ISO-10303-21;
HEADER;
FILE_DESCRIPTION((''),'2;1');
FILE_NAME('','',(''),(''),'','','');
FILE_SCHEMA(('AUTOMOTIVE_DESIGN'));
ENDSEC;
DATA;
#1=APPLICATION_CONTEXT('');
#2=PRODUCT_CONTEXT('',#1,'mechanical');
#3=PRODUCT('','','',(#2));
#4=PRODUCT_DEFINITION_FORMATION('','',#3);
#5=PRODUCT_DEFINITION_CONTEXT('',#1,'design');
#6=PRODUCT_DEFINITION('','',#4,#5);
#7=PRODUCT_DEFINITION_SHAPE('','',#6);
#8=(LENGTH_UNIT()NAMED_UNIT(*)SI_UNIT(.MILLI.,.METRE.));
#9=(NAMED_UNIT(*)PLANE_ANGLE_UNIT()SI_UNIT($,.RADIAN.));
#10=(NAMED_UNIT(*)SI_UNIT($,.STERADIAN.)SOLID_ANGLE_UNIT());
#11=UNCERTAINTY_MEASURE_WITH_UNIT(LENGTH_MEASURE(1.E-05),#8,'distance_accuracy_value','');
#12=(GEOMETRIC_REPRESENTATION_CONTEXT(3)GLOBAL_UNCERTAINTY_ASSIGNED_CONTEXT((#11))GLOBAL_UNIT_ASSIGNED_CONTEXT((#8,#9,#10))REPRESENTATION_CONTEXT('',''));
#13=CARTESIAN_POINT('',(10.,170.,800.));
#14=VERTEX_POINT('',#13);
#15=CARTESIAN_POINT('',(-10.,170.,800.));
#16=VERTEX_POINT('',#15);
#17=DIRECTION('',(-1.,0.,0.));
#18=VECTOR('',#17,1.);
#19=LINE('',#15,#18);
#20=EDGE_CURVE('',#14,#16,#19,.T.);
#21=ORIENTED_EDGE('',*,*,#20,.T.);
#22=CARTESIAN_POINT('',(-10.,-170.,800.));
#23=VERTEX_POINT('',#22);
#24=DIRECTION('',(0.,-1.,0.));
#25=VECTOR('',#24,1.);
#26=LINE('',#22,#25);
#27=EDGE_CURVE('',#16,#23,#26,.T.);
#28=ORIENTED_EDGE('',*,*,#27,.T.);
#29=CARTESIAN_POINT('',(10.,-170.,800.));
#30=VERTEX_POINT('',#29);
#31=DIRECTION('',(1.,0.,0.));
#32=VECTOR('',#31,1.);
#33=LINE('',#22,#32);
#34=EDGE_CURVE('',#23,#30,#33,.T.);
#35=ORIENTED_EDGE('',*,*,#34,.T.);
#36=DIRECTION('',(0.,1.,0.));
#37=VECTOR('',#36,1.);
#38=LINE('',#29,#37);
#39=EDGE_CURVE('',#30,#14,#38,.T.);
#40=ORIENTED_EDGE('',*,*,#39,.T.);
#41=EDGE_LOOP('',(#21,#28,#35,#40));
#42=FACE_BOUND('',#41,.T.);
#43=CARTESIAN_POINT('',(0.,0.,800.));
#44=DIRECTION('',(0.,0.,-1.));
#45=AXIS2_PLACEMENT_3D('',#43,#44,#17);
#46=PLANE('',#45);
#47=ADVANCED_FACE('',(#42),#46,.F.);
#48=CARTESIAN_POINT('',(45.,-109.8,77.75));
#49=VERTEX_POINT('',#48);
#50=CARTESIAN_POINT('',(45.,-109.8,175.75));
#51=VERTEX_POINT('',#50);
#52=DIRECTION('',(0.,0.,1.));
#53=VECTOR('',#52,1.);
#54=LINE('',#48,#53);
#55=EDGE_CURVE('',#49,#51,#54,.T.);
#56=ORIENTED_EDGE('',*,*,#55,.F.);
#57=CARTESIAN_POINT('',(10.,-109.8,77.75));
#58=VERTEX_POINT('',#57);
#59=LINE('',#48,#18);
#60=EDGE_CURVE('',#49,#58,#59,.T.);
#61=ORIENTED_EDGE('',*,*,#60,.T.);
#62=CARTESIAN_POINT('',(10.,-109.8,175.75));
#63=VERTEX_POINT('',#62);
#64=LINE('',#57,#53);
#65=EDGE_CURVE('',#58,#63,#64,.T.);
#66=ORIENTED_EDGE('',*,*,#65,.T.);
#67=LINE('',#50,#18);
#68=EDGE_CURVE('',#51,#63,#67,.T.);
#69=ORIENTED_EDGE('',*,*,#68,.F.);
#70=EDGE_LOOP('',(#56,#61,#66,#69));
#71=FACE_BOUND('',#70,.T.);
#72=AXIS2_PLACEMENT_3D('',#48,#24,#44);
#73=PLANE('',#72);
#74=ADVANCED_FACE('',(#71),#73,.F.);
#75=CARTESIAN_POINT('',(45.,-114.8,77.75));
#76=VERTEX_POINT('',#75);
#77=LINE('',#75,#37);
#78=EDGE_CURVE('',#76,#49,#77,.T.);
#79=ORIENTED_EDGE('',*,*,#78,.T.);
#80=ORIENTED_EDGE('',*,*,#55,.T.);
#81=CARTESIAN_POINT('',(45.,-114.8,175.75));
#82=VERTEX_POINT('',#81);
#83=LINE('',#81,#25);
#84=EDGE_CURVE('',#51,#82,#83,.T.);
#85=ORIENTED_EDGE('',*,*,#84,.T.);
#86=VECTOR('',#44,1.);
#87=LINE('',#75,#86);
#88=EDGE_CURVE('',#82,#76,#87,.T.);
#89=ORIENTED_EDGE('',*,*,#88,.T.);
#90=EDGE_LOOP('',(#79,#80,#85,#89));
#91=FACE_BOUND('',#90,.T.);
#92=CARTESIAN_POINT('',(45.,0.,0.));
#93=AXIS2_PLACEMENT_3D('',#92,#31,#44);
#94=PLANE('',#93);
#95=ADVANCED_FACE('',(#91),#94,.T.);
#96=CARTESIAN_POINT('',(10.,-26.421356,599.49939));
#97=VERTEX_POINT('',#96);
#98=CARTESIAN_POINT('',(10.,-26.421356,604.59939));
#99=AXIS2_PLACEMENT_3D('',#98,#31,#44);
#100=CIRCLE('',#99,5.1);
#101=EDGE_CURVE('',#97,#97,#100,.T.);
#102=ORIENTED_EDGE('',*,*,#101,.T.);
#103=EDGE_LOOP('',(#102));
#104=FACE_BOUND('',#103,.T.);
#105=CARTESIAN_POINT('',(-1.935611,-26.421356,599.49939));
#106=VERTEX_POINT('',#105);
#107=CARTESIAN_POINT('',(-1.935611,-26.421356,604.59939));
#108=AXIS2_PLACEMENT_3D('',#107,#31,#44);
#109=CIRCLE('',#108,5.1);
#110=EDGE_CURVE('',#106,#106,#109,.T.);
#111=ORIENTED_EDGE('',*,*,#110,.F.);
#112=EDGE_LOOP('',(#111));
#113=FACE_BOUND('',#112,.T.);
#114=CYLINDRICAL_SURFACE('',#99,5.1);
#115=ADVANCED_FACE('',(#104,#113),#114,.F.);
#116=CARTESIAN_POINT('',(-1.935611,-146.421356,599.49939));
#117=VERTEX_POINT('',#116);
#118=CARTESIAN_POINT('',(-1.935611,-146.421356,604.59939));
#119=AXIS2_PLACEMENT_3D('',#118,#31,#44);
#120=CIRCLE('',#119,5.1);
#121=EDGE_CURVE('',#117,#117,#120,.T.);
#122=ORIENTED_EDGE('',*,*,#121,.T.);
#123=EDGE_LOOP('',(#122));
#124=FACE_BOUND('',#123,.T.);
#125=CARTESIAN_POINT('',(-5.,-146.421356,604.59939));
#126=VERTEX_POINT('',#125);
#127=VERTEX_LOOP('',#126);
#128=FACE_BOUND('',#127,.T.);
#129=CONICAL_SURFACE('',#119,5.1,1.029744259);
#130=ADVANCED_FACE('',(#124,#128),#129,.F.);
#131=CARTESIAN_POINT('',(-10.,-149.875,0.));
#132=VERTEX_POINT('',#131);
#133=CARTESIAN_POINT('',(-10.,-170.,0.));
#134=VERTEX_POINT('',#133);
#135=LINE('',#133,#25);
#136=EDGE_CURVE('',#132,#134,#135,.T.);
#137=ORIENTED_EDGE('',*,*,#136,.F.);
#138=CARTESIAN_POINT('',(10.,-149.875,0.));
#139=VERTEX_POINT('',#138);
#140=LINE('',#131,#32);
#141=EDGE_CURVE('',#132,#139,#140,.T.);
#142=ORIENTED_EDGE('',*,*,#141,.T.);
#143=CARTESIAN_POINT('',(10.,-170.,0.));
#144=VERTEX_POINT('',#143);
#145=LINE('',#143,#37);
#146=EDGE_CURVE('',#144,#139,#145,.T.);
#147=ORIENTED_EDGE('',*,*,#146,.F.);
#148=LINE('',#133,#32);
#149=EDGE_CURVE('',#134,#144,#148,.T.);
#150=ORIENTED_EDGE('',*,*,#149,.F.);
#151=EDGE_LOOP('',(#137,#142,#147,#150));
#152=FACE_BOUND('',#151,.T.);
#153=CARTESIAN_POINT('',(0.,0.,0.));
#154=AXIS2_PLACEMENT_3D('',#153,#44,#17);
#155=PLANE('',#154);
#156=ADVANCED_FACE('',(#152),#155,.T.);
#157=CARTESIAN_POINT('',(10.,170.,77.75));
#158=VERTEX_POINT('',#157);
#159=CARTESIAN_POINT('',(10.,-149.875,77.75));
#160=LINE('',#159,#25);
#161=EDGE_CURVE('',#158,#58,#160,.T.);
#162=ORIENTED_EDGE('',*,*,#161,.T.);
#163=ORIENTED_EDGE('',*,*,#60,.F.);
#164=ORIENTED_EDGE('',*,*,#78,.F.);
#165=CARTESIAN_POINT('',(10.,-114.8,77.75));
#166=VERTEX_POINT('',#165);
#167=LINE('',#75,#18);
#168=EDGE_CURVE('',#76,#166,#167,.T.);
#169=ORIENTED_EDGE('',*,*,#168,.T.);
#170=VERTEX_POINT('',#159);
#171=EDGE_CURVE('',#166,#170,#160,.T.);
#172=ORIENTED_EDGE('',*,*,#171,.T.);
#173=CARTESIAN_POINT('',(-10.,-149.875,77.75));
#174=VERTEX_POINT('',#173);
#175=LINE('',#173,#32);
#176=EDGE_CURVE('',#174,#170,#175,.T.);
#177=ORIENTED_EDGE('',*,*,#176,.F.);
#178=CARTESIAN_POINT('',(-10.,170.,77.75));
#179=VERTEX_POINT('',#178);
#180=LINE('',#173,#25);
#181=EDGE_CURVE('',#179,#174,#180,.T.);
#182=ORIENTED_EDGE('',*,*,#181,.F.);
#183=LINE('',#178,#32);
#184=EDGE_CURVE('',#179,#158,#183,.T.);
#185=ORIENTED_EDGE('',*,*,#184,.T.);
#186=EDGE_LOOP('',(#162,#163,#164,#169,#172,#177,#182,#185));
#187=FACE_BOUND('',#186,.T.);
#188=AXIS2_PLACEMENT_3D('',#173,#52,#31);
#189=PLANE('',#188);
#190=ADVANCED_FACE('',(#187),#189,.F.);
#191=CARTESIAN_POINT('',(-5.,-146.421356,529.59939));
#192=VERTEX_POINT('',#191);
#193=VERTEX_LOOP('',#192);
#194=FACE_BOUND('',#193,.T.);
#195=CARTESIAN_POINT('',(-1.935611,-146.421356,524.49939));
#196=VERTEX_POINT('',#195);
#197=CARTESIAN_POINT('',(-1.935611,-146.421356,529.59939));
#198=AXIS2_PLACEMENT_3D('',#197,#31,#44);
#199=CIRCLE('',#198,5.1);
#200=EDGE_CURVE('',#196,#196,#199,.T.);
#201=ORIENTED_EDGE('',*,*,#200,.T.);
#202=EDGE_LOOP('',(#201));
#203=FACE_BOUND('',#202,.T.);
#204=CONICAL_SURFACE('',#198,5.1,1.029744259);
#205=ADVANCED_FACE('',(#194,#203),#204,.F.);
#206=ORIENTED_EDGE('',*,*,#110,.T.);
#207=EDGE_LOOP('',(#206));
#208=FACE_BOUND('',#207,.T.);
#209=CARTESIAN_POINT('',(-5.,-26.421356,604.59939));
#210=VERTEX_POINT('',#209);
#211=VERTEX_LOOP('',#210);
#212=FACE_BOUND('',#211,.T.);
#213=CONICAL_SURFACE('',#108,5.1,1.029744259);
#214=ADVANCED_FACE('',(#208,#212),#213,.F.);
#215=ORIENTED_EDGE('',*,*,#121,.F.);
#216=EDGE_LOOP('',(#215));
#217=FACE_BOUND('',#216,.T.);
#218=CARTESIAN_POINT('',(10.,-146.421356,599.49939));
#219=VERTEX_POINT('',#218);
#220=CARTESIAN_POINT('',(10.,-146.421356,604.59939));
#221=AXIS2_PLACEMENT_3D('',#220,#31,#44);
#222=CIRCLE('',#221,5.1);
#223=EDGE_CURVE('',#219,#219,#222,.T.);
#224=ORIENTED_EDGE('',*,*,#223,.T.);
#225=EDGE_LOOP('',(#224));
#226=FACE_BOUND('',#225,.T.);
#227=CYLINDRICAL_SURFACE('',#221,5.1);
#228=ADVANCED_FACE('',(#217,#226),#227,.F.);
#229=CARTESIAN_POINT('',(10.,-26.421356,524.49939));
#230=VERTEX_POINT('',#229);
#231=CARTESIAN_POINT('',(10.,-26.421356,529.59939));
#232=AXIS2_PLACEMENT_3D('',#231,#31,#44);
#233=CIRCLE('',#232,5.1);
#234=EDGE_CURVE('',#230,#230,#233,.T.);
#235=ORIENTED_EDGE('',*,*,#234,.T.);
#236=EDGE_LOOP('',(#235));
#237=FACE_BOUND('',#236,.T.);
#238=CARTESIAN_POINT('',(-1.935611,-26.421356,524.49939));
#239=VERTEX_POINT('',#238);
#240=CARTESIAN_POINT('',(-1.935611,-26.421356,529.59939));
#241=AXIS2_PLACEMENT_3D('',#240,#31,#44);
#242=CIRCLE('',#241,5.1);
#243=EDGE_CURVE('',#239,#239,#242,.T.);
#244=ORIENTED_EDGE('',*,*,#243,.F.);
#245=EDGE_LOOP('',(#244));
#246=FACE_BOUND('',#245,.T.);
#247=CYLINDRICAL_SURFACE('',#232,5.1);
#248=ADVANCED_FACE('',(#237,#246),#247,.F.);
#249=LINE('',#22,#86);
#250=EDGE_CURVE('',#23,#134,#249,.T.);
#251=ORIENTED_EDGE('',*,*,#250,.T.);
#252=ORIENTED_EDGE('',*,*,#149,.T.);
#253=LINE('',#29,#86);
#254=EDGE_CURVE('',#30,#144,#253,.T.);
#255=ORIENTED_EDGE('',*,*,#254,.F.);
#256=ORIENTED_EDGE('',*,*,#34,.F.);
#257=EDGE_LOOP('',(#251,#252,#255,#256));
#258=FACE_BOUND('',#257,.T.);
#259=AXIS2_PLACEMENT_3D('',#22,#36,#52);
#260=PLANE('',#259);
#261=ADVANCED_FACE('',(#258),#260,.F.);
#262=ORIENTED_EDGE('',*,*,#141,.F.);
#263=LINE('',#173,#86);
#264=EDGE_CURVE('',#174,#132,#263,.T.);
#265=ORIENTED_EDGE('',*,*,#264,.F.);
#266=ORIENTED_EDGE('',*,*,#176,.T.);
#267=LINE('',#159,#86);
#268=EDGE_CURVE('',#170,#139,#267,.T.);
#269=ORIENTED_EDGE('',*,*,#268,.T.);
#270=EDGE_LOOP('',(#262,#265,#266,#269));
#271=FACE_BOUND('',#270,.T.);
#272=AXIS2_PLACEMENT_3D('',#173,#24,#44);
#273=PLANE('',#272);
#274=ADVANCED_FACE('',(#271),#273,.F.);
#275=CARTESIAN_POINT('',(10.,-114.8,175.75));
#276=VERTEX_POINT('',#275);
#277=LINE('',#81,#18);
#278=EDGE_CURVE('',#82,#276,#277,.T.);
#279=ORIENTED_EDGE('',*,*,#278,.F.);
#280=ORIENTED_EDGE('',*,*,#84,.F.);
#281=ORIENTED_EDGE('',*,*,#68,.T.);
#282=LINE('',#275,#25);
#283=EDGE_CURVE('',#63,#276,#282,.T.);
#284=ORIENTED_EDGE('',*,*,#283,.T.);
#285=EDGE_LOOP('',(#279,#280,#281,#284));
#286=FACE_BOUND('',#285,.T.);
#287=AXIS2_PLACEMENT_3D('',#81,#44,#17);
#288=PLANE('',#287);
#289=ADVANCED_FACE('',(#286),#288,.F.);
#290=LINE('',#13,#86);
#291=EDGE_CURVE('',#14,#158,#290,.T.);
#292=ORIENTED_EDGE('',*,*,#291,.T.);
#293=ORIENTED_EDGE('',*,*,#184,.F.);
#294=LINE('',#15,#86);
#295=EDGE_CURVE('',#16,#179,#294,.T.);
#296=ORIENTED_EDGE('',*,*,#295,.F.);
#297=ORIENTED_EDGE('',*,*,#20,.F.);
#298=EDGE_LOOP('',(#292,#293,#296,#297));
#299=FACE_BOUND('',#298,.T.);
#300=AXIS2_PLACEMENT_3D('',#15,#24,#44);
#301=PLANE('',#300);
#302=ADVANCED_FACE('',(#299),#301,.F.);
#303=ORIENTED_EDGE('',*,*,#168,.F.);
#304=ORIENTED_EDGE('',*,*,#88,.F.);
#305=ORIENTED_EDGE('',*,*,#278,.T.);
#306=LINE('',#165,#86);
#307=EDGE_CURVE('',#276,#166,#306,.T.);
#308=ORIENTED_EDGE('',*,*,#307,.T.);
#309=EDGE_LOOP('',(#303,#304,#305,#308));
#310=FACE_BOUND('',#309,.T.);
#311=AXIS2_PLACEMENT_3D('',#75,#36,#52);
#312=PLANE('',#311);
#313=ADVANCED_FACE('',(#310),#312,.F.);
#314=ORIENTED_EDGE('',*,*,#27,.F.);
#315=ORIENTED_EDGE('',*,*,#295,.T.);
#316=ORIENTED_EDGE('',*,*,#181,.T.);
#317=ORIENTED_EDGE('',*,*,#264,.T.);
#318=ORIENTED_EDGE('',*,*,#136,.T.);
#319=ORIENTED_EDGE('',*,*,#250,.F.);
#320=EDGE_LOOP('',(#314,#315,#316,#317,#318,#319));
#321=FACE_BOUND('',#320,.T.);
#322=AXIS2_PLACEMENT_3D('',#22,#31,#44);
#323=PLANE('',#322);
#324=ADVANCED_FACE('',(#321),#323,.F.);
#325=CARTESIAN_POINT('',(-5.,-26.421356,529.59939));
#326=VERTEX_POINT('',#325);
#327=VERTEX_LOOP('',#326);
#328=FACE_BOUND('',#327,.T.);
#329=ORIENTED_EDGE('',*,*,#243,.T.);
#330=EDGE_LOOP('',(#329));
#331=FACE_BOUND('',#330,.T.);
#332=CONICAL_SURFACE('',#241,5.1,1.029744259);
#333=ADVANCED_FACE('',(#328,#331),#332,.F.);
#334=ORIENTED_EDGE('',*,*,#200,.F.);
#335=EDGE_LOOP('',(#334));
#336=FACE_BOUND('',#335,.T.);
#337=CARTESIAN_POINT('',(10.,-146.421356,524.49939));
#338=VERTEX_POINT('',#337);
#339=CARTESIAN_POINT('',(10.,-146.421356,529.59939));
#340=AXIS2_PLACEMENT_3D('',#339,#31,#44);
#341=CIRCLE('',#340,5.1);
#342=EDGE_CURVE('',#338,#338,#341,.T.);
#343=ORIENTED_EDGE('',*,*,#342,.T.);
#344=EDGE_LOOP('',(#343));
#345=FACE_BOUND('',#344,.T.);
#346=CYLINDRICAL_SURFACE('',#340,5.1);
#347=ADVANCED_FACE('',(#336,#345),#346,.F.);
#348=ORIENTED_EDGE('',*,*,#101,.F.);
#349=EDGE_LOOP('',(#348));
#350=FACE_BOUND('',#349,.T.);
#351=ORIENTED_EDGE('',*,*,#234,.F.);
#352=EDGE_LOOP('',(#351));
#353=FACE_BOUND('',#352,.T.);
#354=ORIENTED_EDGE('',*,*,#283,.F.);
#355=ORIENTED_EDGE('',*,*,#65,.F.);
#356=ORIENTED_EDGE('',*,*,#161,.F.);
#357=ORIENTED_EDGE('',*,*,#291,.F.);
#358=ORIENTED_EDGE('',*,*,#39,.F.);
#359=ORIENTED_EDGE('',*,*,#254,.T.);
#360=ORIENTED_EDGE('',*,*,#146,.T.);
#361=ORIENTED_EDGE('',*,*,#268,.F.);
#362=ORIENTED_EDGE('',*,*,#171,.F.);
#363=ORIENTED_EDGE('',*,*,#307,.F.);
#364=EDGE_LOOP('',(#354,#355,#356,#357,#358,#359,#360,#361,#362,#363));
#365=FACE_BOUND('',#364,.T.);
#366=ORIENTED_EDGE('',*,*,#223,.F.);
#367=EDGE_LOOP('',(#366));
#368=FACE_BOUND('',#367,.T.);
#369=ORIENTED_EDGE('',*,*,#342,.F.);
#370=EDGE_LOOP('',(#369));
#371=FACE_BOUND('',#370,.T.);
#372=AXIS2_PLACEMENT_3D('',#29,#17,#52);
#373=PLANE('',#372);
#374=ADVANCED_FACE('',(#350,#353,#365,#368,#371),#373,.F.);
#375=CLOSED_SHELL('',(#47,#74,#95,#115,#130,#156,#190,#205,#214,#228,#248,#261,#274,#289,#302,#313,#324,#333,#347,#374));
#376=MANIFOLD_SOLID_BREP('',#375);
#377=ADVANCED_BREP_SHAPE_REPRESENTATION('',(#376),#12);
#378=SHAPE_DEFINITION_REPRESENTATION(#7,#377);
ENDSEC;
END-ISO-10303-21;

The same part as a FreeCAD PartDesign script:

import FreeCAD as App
import Part
import Sketcher

doc = App.newDocument("Part")
body = doc.addObject("PartDesign::Body", "Body")

sketch1 = doc.addObject("Sketcher::SketchObject", "Sketch")
body.addObject(sketch1)
sketch1.AttachmentSupport = (doc.XY_Plane, [""])
sketch1.MapMode = "FlatFace"
sketch1.addGeometry(Part.LineSegment(App.Vector(-10, 170, 0), App.Vector(-10, -170, 0)), False)
sketch1.addGeometry(Part.LineSegment(App.Vector(-10, -170, 0), App.Vector(10, -170, 0)), False)
sketch1.addGeometry(Part.LineSegment(App.Vector(10, -170, 0), App.Vector(10, 170, 0)), False)
sketch1.addGeometry(Part.LineSegment(App.Vector(10, 170, 0), App.Vector(-10, 170, 0)), False)
sketch1.addConstraint(Sketcher.Constraint("Coincident", 0, 2, 1, 1))
sketch1.addConstraint(Sketcher.Constraint("Coincident", 1, 2, 2, 1))
sketch1.addConstraint(Sketcher.Constraint("Coincident", 2, 2, 3, 1))
sketch1.addConstraint(Sketcher.Constraint("Coincident", 3, 2, 0, 1))
sketch1.addConstraint(Sketcher.Constraint("Vertical", 0))
sketch1.addConstraint(Sketcher.Constraint("Horizontal", 1))
sketch1.addConstraint(Sketcher.Constraint("Vertical", 2))
sketch1.addConstraint(Sketcher.Constraint("Horizontal", 3))
sketch1.addConstraint(Sketcher.Constraint("Symmetric", 0, 2, 2, 2, -1, 1))
sketch1.addConstraint(Sketcher.Constraint("DistanceX", 1, 1, 1, 2, 20.0))
sketch1.addConstraint(Sketcher.Constraint("DistanceY", 0, 2, 0, 1, 340.0))
pad1 = doc.addObject("PartDesign::Pad", "Pad")
body.addObject(pad1)
pad1.Profile = sketch1
pad1.Length = 800

sketch2 = doc.addObject("Sketcher::SketchObject", "Sketch001")
body.addObject(sketch2)
sketch2.AttachmentSupport = (doc.YZ_Plane, [""])
sketch2.MapMode = "FlatFace"
sketch2.AttachmentOffset = App.Placement(App.Vector(0, 0, 10), App.Rotation())
sketch2.addGeometry(Part.Circle(App.Vector(-26, 530, 0), App.Vector(0, 0, 1), 5), False)
sketch2.addGeometry(Part.Circle(App.Vector(-146, 530, 0), App.Vector(0, 0, 1), 5), False)
sketch2.addGeometry(Part.Circle(App.Vector(-146, 605, 0), App.Vector(0, 0, 1), 5), False)
sketch2.addGeometry(Part.Circle(App.Vector(-26, 605, 0), App.Vector(0, 0, 1), 5), False)
sketch2.addConstraint(Sketcher.Constraint("Equal", 0, 1))
sketch2.addConstraint(Sketcher.Constraint("Equal", 1, 2))
sketch2.addConstraint(Sketcher.Constraint("Equal", 2, 3))
sketch2.addConstraint(Sketcher.Constraint("Horizontal", 0, 3, 1, 3))
sketch2.addConstraint(Sketcher.Constraint("Horizontal", 2, 3, 3, 3))
sketch2.addConstraint(Sketcher.Constraint("Vertical", 1, 3, 2, 3))
sketch2.addConstraint(Sketcher.Constraint("Vertical", 0, 3, 3, 3))
sketch2.addConstraint(Sketcher.Constraint("Diameter", 0, 10.2))
sketch2.addConstraint(Sketcher.Constraint("DistanceX", 1, 3, 0, 3, 120.0))
sketch2.addConstraint(Sketcher.Constraint("DistanceY", 1, 3, 2, 3, 75.0))
sketch2.addConstraint(Sketcher.Constraint("DistanceY", -1, 1, 0, 3, 529.59939))
sketch2.addConstraint(Sketcher.Constraint("DistanceX", 0, 3, -1, 1, 26.421356))
doc.recompute()
hole = doc.addObject("PartDesign::Hole", "Hole")
body.addObject(hole)
hole.Profile = sketch2
hole.ThreadType = "None"
hole.Diameter = 10.2
hole.DepthType = "Dimension"
hole.Depth = 11.935611
hole.DrillPoint = "Angled"
hole.DrillPointAngle = 118

sketch3 = doc.addObject("Sketcher::SketchObject", "Sketch002")
body.addObject(sketch3)
sketch3.AttachmentSupport = (doc.YZ_Plane, [""])
sketch3.MapMode = "FlatFace"
sketch3.AttachmentOffset = App.Placement(App.Vector(0, 0, 10), App.Rotation())
sketch3.addGeometry(Part.LineSegment(App.Vector(170, 78, 0), App.Vector(-150, 78, 0)), False)
sketch3.addGeometry(Part.LineSegment(App.Vector(-150, 78, 0), App.Vector(-150, 0, 0)), False)
sketch3.addGeometry(Part.LineSegment(App.Vector(-150, 0, 0), App.Vector(170, 0, 0)), False)
sketch3.addGeometry(Part.LineSegment(App.Vector(170, 0, 0), App.Vector(170, 78, 0)), False)
sketch3.addConstraint(Sketcher.Constraint("Coincident", 0, 2, 1, 1))
sketch3.addConstraint(Sketcher.Constraint("Coincident", 1, 2, 2, 1))
sketch3.addConstraint(Sketcher.Constraint("Coincident", 2, 2, 3, 1))
sketch3.addConstraint(Sketcher.Constraint("Coincident", 3, 2, 0, 1))
sketch3.addConstraint(Sketcher.Constraint("Horizontal", 0))
sketch3.addConstraint(Sketcher.Constraint("Vertical", 1))
sketch3.addConstraint(Sketcher.Constraint("Horizontal", 2))
sketch3.addConstraint(Sketcher.Constraint("Vertical", 3))
sketch3.addConstraint(Sketcher.Constraint("PointOnObject", 1, 2, -1))
sketch3.addConstraint(Sketcher.Constraint("DistanceX", -1, 1, 2, 2, 170.0))
sketch3.addConstraint(Sketcher.Constraint("DistanceY", 1, 2, 1, 1, 77.75))
sketch3.addConstraint(Sketcher.Constraint("DistanceX", 0, 2, 0, 1, 319.875))
pocket1 = doc.addObject("PartDesign::Pocket", "Pocket")
body.addObject(pocket1)
pocket1.Profile = sketch3
pocket1.Type = "ThroughAll"

sketch4 = doc.addObject("Sketcher::SketchObject", "Sketch003")
body.addObject(sketch4)
sketch4.AttachmentSupport = (doc.YZ_Plane, [""])
sketch4.MapMode = "FlatFace"
sketch4.AttachmentOffset = App.Placement(App.Vector(0, 0, 10), App.Rotation())
sketch4.addGeometry(Part.LineSegment(App.Vector(-110, 176, 0), App.Vector(-115, 176, 0)), False)
sketch4.addGeometry(Part.LineSegment(App.Vector(-115, 176, 0), App.Vector(-115, 78, 0)), False)
sketch4.addGeometry(Part.LineSegment(App.Vector(-115, 78, 0), App.Vector(-110, 78, 0)), False)
sketch4.addGeometry(Part.LineSegment(App.Vector(-110, 78, 0), App.Vector(-110, 176, 0)), False)
sketch4.addConstraint(Sketcher.Constraint("Coincident", 0, 2, 1, 1))
sketch4.addConstraint(Sketcher.Constraint("Coincident", 1, 2, 2, 1))
sketch4.addConstraint(Sketcher.Constraint("Coincident", 2, 2, 3, 1))
sketch4.addConstraint(Sketcher.Constraint("Coincident", 3, 2, 0, 1))
sketch4.addConstraint(Sketcher.Constraint("Horizontal", 0))
sketch4.addConstraint(Sketcher.Constraint("Vertical", 1))
sketch4.addConstraint(Sketcher.Constraint("Horizontal", 2))
sketch4.addConstraint(Sketcher.Constraint("Vertical", 3))
sketch4.addConstraint(Sketcher.Constraint("DistanceX", 0, 2, 0, 1, 5.0))
sketch4.addConstraint(Sketcher.Constraint("DistanceY", 1, 2, 1, 1, 98.0))
sketch4.addConstraint(Sketcher.Constraint("DistanceX", 0, 2, -1, 1, 114.8))
sketch4.addConstraint(Sketcher.Constraint("DistanceY", -1, 1, 0, 2, 175.75))
pad2 = doc.addObject("PartDesign::Pad", "Pad001")
body.addObject(pad2)
pad2.Profile = sketch4
pad2.Length = 35

doc.recompute()
